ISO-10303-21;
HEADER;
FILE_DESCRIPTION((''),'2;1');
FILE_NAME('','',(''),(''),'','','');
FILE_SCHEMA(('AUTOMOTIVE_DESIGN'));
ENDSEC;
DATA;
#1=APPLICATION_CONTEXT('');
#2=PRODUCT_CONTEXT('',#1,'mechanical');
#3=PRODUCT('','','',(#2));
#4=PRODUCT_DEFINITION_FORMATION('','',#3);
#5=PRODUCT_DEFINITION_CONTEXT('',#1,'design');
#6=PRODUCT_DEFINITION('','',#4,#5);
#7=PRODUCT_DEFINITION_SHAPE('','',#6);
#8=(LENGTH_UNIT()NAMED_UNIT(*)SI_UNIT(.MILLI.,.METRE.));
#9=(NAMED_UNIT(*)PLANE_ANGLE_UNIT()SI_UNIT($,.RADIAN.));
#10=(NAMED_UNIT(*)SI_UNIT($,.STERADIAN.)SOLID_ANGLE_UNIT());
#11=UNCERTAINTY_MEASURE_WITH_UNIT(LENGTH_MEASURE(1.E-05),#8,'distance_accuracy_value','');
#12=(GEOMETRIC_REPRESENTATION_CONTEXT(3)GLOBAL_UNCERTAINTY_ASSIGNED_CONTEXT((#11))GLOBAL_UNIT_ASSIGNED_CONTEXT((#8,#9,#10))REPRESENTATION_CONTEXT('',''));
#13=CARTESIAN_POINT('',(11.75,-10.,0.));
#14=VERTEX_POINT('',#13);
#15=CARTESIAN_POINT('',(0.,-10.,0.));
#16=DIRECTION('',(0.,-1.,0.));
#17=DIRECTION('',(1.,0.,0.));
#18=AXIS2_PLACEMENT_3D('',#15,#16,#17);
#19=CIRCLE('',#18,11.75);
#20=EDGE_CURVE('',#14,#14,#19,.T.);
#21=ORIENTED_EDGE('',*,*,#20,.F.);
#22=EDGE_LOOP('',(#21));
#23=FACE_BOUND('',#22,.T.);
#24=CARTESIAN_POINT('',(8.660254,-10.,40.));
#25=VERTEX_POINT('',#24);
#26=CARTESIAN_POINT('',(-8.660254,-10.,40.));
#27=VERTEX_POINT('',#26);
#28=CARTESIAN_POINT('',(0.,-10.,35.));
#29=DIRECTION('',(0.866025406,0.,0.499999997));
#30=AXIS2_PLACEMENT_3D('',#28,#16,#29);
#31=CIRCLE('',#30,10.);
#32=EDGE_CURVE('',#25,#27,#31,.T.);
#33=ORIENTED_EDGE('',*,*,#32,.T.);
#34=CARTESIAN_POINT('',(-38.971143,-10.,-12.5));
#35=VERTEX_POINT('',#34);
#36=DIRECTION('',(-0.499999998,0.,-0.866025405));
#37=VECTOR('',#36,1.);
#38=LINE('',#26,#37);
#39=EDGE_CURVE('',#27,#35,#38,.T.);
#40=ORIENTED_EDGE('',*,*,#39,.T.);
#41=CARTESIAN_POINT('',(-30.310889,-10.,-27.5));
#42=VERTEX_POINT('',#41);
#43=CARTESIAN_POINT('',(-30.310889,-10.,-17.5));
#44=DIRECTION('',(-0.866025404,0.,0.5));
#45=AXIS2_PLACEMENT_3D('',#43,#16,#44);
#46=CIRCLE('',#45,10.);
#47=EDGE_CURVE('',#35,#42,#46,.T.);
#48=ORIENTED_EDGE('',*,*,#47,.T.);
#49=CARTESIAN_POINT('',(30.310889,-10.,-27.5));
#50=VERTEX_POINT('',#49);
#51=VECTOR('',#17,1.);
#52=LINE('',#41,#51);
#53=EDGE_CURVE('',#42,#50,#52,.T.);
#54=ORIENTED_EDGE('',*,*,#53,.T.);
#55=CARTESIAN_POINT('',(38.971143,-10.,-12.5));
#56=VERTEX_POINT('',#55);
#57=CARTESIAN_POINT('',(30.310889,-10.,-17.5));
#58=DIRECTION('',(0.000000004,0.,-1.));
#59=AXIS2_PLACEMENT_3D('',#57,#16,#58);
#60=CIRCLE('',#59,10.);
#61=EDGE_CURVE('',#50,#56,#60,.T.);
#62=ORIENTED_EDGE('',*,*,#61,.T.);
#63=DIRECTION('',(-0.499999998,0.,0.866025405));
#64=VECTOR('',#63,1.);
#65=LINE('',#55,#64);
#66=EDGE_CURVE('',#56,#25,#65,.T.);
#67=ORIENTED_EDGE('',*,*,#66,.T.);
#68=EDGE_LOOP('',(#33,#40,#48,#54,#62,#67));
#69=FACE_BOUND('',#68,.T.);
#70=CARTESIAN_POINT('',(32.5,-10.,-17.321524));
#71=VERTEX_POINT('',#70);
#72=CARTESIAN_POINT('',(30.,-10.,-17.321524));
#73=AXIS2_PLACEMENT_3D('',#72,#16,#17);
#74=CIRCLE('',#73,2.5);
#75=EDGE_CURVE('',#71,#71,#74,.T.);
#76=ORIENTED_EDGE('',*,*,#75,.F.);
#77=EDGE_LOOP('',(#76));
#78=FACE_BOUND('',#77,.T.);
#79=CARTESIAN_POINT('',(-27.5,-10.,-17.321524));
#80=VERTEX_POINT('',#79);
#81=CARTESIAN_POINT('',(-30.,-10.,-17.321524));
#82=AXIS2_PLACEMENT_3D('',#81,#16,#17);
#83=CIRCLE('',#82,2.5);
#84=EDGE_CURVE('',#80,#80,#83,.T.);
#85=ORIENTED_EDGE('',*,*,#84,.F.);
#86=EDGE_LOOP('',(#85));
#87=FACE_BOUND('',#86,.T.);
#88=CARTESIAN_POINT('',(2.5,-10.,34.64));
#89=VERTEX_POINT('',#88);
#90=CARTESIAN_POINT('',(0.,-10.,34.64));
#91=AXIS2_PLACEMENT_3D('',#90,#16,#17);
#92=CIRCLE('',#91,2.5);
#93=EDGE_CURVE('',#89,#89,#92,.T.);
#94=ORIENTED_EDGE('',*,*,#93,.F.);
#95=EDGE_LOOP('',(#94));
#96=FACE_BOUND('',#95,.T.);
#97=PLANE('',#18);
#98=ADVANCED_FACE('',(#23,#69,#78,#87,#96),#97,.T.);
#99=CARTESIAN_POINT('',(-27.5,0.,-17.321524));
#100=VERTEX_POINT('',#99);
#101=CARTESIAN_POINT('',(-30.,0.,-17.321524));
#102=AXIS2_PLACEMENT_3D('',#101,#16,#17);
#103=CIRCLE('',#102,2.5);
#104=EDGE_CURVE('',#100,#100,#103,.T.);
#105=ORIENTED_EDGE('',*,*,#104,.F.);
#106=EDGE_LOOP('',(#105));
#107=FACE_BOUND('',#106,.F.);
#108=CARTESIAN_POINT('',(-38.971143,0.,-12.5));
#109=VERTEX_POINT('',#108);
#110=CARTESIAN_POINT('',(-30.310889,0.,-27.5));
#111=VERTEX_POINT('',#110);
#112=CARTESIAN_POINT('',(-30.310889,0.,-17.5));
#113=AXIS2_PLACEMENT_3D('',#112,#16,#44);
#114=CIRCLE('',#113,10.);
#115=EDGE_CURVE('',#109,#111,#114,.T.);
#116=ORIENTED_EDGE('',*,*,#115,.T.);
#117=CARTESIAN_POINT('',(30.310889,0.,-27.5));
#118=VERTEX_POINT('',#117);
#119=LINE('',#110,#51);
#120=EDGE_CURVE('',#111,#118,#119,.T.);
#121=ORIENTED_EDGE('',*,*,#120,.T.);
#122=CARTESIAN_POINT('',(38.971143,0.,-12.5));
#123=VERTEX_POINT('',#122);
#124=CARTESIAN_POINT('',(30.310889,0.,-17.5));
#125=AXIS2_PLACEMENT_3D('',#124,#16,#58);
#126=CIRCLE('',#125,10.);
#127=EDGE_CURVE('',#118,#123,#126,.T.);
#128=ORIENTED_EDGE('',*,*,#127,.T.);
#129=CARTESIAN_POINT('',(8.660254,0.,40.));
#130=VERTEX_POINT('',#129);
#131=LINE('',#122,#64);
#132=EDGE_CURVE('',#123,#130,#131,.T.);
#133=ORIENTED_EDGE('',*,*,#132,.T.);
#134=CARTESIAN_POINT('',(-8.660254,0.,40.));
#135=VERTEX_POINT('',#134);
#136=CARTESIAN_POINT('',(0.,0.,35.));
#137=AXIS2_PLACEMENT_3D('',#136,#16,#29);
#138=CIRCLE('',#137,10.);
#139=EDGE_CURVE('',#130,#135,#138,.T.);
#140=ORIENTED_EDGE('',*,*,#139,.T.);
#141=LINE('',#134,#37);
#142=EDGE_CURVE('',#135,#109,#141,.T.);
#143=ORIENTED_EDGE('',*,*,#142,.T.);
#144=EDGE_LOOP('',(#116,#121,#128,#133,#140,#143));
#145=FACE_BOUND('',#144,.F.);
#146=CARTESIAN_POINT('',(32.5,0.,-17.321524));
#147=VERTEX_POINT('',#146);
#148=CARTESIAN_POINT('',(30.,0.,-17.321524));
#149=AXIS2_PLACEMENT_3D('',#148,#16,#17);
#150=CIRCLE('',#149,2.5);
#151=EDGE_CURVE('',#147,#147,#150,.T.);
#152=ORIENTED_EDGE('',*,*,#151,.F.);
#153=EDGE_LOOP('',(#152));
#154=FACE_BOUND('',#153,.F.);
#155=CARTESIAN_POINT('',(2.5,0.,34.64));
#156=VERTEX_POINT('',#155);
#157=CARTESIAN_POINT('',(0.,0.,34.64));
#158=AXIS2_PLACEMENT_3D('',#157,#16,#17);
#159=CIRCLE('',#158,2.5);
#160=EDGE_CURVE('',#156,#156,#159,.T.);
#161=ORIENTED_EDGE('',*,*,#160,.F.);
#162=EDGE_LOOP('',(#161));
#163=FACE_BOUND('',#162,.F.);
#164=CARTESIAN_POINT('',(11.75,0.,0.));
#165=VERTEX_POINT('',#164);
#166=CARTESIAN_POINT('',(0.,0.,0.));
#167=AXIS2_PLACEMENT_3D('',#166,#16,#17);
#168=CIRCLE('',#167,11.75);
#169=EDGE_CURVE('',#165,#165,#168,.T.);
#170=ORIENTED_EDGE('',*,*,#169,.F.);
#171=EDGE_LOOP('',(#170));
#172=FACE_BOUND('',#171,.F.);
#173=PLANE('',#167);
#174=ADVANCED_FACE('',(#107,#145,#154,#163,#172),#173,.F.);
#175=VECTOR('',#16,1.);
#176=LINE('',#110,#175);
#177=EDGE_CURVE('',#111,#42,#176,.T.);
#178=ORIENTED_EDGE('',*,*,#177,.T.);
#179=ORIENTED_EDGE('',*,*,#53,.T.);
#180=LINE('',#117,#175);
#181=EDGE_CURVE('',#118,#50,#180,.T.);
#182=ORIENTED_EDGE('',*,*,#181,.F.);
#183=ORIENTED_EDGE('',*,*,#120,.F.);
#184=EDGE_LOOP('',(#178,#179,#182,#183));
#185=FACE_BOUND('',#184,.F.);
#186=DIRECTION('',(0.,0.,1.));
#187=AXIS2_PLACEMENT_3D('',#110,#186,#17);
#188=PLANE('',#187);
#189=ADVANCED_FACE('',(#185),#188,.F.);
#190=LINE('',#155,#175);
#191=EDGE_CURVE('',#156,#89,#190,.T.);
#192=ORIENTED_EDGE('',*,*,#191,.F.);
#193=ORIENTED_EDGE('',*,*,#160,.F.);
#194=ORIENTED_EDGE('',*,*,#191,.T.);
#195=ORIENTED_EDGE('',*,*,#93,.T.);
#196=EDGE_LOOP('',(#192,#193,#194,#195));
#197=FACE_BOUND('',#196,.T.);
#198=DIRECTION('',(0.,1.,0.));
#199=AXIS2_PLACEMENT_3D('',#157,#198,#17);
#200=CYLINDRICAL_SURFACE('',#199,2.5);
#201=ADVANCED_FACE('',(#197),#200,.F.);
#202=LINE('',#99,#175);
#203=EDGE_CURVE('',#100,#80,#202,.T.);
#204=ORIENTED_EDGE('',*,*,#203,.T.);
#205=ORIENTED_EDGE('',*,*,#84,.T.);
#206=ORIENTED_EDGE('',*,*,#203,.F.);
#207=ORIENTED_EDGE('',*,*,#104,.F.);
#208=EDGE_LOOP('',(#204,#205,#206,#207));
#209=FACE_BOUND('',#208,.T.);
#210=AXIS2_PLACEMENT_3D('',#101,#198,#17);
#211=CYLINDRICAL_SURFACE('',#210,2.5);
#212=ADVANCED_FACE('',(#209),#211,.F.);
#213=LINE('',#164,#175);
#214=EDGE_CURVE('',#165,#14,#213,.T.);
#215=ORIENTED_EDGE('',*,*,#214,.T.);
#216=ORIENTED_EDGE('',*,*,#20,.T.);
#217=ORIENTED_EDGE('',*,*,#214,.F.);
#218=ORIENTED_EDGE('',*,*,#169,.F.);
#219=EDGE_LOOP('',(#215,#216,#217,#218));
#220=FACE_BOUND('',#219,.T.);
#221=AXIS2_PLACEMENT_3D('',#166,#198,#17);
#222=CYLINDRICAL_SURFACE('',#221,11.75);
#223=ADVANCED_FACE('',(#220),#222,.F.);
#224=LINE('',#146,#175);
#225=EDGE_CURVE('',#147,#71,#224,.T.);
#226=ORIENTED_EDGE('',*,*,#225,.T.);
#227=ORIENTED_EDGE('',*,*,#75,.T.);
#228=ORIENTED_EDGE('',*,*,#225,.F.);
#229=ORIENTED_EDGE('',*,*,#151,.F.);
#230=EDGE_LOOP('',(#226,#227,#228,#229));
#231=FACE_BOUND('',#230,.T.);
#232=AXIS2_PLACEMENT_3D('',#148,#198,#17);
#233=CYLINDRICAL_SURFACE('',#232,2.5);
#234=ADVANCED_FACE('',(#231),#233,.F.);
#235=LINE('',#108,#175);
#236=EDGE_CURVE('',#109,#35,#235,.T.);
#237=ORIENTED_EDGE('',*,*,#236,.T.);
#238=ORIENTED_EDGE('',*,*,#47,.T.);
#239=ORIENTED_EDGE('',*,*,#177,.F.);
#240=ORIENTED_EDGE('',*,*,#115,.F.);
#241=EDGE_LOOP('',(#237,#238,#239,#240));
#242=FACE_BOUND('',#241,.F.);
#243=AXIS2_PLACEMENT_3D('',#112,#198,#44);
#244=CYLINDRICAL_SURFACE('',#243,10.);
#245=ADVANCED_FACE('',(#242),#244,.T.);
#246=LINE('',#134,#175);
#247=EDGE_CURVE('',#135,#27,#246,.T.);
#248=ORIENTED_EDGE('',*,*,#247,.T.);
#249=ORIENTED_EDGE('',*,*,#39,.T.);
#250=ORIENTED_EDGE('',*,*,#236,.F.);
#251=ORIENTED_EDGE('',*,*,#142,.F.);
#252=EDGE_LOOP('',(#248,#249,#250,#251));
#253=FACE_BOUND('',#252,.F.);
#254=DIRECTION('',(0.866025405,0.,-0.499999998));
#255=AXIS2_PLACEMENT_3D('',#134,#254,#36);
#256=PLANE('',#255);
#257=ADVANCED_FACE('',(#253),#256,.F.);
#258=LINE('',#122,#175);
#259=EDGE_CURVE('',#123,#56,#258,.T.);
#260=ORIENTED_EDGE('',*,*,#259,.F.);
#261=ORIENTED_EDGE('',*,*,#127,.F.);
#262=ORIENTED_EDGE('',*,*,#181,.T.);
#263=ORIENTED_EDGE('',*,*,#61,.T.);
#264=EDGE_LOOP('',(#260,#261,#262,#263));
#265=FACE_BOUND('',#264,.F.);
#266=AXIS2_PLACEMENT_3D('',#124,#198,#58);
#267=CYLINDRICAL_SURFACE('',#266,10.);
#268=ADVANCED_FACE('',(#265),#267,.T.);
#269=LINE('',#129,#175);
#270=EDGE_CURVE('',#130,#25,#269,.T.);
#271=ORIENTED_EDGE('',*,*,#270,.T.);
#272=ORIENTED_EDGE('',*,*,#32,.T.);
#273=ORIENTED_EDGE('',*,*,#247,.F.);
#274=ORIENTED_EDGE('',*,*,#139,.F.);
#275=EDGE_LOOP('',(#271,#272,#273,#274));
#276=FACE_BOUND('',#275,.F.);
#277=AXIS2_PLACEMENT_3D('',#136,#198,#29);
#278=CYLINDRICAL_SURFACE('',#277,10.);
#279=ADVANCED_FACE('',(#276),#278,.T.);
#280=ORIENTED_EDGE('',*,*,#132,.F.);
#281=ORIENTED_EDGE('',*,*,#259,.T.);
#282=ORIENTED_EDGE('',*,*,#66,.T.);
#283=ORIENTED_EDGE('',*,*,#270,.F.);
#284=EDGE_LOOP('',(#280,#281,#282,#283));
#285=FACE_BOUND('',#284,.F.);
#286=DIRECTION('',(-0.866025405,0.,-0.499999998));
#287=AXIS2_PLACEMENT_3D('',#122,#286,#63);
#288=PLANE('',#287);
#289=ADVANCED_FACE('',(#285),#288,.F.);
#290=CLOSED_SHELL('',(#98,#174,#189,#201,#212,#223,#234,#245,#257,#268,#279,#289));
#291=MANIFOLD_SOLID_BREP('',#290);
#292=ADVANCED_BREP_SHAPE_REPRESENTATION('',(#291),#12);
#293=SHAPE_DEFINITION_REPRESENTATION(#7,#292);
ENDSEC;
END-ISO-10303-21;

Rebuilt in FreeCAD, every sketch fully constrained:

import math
import FreeCAD as App
import Part
import Sketcher
from FreeCAD import Vector
Q = App.Units.Quantity

doc = App.newDocument("Part")
body = doc.addObject("PartDesign::Body", "Body")

# Sketch on XZ plane
sketch1 = doc.addObject("Sketcher::SketchObject", "Sketch")
body.addObject(sketch1)
sketch1.AttachmentSupport = (doc.XZ_Plane, [""])
sketch1.MapMode = "FlatFace"
sketch1.addGeometry(Part.LineSegment(Vector(-30.3, -27.5, 0), Vector(30.3, -27.5, 0)), False)
sketch1.addGeometry(Part.ArcOfCircle(Part.Circle(Vector(30.3, -17.5, 0), Vector(0, 0, 1), 10), math.radians(-90), math.radians(30)), False)
sketch1.addGeometry(Part.LineSegment(Vector(39, -12.5, 0), Vector(8.7, 40, 0)), False)
sketch1.addGeometry(Part.ArcOfCircle(Part.Circle(Vector(0, 35, 0), Vector(0, 0, 1), 10), math.radians(30), math.radians(150)), False)
sketch1.addGeometry(Part.LineSegment(Vector(-8.7, 40, 0), Vector(-39, -12.5, 0)), False)
sketch1.addGeometry(Part.ArcOfCircle(Part.Circle(Vector(-30.3, -17.5, 0), Vector(0, 0, 1), 10), math.radians(150), math.radians(270)), False)
sketch1.addGeometry(Part.Circle(Vector(-30, -17.3, 0), Vector(0, 0, 1), 2.5), False)
sketch1.addGeometry(Part.Circle(Vector(30, -17.3, 0), Vector(0, 0, 1), 2.5), False)
sketch1.addGeometry(Part.Circle(Vector(0, 0, 0), Vector(0, 0, 1), 11.8), False)
sketch1.addGeometry(Part.Circle(Vector(0, 34.6, 0), Vector(0, 0, 1), 2.5), False)
sketch1.addConstraint(Sketcher.Constraint("Tangent", 0, 2, 1, 1))
sketch1.addConstraint(Sketcher.Constraint("Tangent", 1, 2, 2, 1))
sketch1.addConstraint(Sketcher.Constraint("Tangent", 2, 2, 3, 1))
sketch1.addConstraint(Sketcher.Constraint("Tangent", 3, 2, 4, 1))
sketch1.addConstraint(Sketcher.Constraint("Tangent", 4, 2, 5, 1))
sketch1.addConstraint(Sketcher.Constraint("Tangent", 5, 2, 0, 1))
sketch1.addConstraint(Sketcher.Constraint("Horizontal", 0))
sketch1.addConstraint(Sketcher.Constraint("Coincident", 8, 3, -1, 1))
sketch1.addConstraint(Sketcher.Constraint("Equal", 1, 3))
sketch1.addConstraint(Sketcher.Constraint("Equal", 3, 5))
sketch1.addConstraint(Sketcher.Constraint("Equal", 6, 7))
sketch1.addConstraint(Sketcher.Constraint("Equal", 7, 9))
sketch1.addConstraint(Sketcher.Constraint("Symmetric", 6, 3, 7, 3, -2))
sketch1.addConstraint(Sketcher.Constraint("Symmetric", 2, 2, 3, 2, -2))
sketch1.addConstraint(Sketcher.Constraint("PointOnObject", 9, 3, -2))
sketch1.addConstraint(Sketcher.Constraint("Diameter", 6, 5.0))
sketch1.addConstraint(Sketcher.Constraint("Radius", 1, 10.0))
sketch1.addConstraint(Sketcher.Constraint("Diameter", 8, 23.5))
sketch1.addConstraint(Sketcher.Constraint("Angle", 2, Q("120 deg")))
sketch1.addConstraint(Sketcher.Constraint("DistanceY", -1, 1, 3, 3, 35.0))
sketch1.addConstraint(Sketcher.Constraint("DistanceX", 6, 3, -1, 1, 30.0))
sketch1.addConstraint(Sketcher.Constraint("DistanceY", 1, 3, -1, 1, 17.5))
sketch1.addConstraint(Sketcher.Constraint("DistanceY", -1, 1, 9, 3, 34.64))
sketch1.addConstraint(Sketcher.Constraint("DistanceY", 6, 3, -1, 1, 17.321524))
pad1 = doc.addObject("PartDesign::Pad", "Pad")
body.addObject(pad1)
pad1.Profile = sketch1
pad1.Length = 10

doc.recompute()
